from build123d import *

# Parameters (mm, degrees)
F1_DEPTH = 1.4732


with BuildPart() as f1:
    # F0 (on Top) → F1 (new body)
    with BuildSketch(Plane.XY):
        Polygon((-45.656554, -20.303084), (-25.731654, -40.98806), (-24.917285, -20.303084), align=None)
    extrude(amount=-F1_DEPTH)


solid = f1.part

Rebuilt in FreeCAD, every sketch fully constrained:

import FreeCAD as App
import Part
import Sketcher

V = App.Vector
Q = App.Units.Quantity


def add_polygon(sketch, points):
    """Adds a closed chain of lines whose ends are joined by coincident constraints."""
    first, n = sketch.GeometryCount, len(points)
    for a, b in zip(points, points[1:] + points[:1]):
        sketch.addGeometry(Part.LineSegment(App.Vector(*a, 0), App.Vector(*b, 0)), False)
    for i in range(n):
        sketch.addConstraint(Sketcher.Constraint("Coincident", first + i, 2, first + (i + 1) % n, 1))

doc = App.newDocument("Part")
params = doc.addObject("Spreadsheet::Sheet", "Params")
for row, (alias, value) in enumerate([
    ("sketch1_length", "0.815 in"),
    ("pad1_length", "0.058 in"),
], start=1):
    params.set(f"A{row}", alias)
    params.set(f"B{row}", "=" + value)
    params.setAlias(f"B{row}", alias)

body = doc.addObject("PartDesign::Body", "Body")

sketch1 = body.newObject("Sketcher::SketchObject", "Sketch")
sketch1.AttachmentSupport = (doc.getObject("XY_Plane"), [""])
sketch1.MapMode = "FlatFace"
add_polygon(sketch1, [(-46, -20), (-26, -41), (-25, -20)])
sketch1.addConstraint([
    Sketcher.Constraint("Horizontal", 2),
    Sketcher.Constraint("Distance", 1, Q("0.815 in")),
    Sketcher.Constraint("DistanceX", 2, 2, 2, 1, Q("20.739269 mm")),
    Sketcher.Constraint("DistanceX", 2, 2, 0, 2, Q("19.9249 mm")),
    Sketcher.Constraint("DistanceY", 0, 2, -1, 1, Q("40.98806 mm")),
    Sketcher.Constraint("DistanceX", 0, 2, -1, 1, Q("25.731654 mm")),
])
sketch1.setExpression("Constraints[4]", "Params.sketch1_length")
pad1 = body.newObject("PartDesign::Pad", "Pad")
pad1.Profile = sketch1
pad1.setExpression("Length", "Params.pad1_length")
pad1.Reversed = True

doc.recompute()
